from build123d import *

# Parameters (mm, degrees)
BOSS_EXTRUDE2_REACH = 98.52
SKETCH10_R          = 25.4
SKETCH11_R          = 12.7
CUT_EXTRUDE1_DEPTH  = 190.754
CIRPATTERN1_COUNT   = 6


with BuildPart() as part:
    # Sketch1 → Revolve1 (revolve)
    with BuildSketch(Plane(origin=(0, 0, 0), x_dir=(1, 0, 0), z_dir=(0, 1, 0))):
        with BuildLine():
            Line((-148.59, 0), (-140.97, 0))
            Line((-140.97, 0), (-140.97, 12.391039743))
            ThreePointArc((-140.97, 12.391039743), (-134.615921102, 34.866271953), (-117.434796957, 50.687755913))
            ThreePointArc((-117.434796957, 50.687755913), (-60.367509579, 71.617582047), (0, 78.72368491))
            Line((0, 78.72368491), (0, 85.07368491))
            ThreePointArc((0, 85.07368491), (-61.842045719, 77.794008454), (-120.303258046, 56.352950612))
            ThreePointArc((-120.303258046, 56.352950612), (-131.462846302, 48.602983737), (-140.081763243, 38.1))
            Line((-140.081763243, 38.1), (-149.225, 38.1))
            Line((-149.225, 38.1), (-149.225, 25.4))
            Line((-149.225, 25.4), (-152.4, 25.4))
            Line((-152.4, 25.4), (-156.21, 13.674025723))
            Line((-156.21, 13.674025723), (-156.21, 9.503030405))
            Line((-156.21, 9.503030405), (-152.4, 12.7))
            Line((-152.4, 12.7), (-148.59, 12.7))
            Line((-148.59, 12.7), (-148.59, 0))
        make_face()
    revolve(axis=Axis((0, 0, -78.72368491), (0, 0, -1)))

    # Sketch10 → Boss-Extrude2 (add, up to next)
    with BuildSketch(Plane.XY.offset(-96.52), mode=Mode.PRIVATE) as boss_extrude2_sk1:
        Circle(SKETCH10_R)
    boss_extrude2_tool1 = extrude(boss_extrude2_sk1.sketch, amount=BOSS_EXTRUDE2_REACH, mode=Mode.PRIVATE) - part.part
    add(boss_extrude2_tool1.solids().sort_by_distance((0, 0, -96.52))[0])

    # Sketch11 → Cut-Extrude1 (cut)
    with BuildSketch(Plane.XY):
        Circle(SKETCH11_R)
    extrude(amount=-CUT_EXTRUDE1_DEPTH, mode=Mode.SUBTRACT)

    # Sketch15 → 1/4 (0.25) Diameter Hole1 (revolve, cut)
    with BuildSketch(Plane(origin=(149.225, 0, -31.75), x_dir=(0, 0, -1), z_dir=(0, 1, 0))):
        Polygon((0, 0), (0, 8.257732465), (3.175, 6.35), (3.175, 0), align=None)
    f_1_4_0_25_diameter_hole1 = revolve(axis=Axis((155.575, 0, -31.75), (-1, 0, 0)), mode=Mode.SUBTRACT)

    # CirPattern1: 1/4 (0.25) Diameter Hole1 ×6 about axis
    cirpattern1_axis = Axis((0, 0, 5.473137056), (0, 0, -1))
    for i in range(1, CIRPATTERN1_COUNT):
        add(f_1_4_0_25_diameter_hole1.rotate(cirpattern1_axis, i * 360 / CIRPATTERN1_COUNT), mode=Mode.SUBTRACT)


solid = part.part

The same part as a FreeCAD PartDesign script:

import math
import FreeCAD as App
import Part
import Sketcher

V = App.Vector
Q = App.Units.Quantity


def add_polygon(sketch, points):
    """Adds a closed chain of lines whose ends are joined by coincident constraints."""
    first, n = sketch.GeometryCount, len(points)
    for a, b in zip(points, points[1:] + points[:1]):
        sketch.addGeometry(Part.LineSegment(App.Vector(*a, 0), App.Vector(*b, 0)), False)
    for i in range(n):
        sketch.addConstraint(Sketcher.Constraint("Coincident", first + i, 2, first + (i + 1) % n, 1))

doc = App.newDocument("Part")
body = doc.addObject("PartDesign::Body", "Body")

# Sketch on XZ plane
sketch1 = doc.addObject("Sketcher::SketchObject", "Sketch")
body.addObject(sketch1)
sketch1.AttachmentSupport = (doc.XZ_Plane, [""])
sketch1.MapMode = "FlatFace"
sketch1.addGeometry(Part.LineSegment(V(-148.6, 0, 0), V(-141, 0, 0)), False)
sketch1.addGeometry(Part.LineSegment(V(-141, 0, 0), V(-141, -12.4, 0)), False)
sketch1.addGeometry(Part.ArcOfCircle(Part.Circle(V(-98, -12.4, 0), V(0, 0, 1), 42.9), math.radians(-180), math.radians(-117)), False)
sketch1.addGeometry(Part.ArcOfCircle(Part.Circle(V(0, 181.2, 0), V(0, 0, 1), 260), math.radians(-117), math.radians(-90)), False)
sketch1.addGeometry(Part.LineSegment(V(0, -78.7, 0), V(0, -85.1, 0)), False)
sketch1.addGeometry(Part.ArcOfCircle(Part.Circle(V(0, 181.2, 0), V(0, 0, 1), 266.3), math.radians(-117), math.radians(-90)), False)
sketch1.addGeometry(Part.ArcOfCircle(Part.Circle(V(-98, -12.4, 0), V(0, 0, 1), 49.3), math.radians(-149), math.radians(-117)), False)
sketch1.addGeometry(Part.LineSegment(V(-140.1, -38.1, 0), V(-149.2, -38.1, 0)), False)
sketch1.addGeometry(Part.LineSegment(V(-149.2, -38.1, 0), V(-149.2, -25.4, 0)), False)
sketch1.addGeometry(Part.LineSegment(V(-149.2, -25.4, 0), V(-152.4, -25.4, 0)), False)
sketch1.addGeometry(Part.LineSegment(V(-152.4, -25.4, 0), V(-156.2, -13.7, 0)), False)
sketch1.addGeometry(Part.LineSegment(V(-156.2, -13.7, 0), V(-156.2, -9.5, 0)), False)
sketch1.addGeometry(Part.LineSegment(V(-156.2, -9.5, 0), V(-152.4, -12.7, 0)), False)
sketch1.addGeometry(Part.LineSegment(V(-152.4, -12.7, 0), V(-148.6, -12.7, 0)), False)
sketch1.addGeometry(Part.LineSegment(V(-148.6, -12.7, 0), V(-148.6, 0, 0)), False)
sketch1.addConstraint(Sketcher.Constraint("Coincident", 0, 2, 1, 1))
sketch1.addConstraint(Sketcher.Constraint("Tangent", 1, 2, 2, 1))
sketch1.addConstraint(Sketcher.Constraint("Tangent", 2, 2, 3, 1))
sketch1.addConstraint(Sketcher.Constraint("Coincident", 3, 2, 4, 1))
sketch1.addConstraint(Sketcher.Constraint("Coincident", 4, 2, 5, 2))
sketch1.addConstraint(Sketcher.Constraint("Tangent", 5, 1, 6, 2))
sketch1.addConstraint(Sketcher.Constraint("Coincident", 6, 1, 7, 1))
sketch1.addConstraint(Sketcher.Constraint("Coincident", 7, 2, 8, 1))
sketch1.addConstraint(Sketcher.Constraint("Coincident", 8, 2, 9, 1))
sketch1.addConstraint(Sketcher.Constraint("Coincident", 9, 2, 10, 1))
sketch1.addConstraint(Sketcher.Constraint("Coincident", 10, 2, 11, 1))
sketch1.addConstraint(Sketcher.Constraint("Coincident", 11, 2, 12, 1))
sketch1.addConstraint(Sketcher.Constraint("Coincident", 12, 2, 13, 1))
sketch1.addConstraint(Sketcher.Constraint("Coincident", 13, 2, 14, 1))
sketch1.addConstraint(Sketcher.Constraint("Coincident", 14, 2, 0, 1))
sketch1.addConstraint(Sketcher.Constraint("Horizontal", 0))
sketch1.addConstraint(Sketcher.Constraint("Vertical", 1))
sketch1.addConstraint(Sketcher.Constraint("Vertical", 4))
sketch1.addConstraint(Sketcher.Constraint("Horizontal", 7))
sketch1.addConstraint(Sketcher.Constraint("Vertical", 8))
sketch1.addConstraint(Sketcher.Constraint("Horizontal", 9))
sketch1.addConstraint(Sketcher.Constraint("Vertical", 11))
sketch1.addConstraint(Sketcher.Constraint("Horizontal", 13))
sketch1.addConstraint(Sketcher.Constraint("Vertical", 14))
sketch1.addConstraint(Sketcher.Constraint("Coincident", 5, 3, 3, 3))
sketch1.addConstraint(Sketcher.Constraint("Coincident", 6, 3, 2, 3))
sketch1.addConstraint(Sketcher.Constraint("PointOnObject", 3, 3, -2))
sketch1.addConstraint(Sketcher.Constraint("PointOnObject", 0, 2, -1))
sketch1.addConstraint(Sketcher.Constraint("PointOnObject", 3, 2, -2))
sketch1.addConstraint(Sketcher.Constraint("Vertical", 9, 2, 12, 2))
sketch1.addConstraint(Sketcher.Constraint("Equal", 8, 14))
sketch1.addConstraint(Sketcher.Constraint("Radius", 2, Q("1.69 in")))
sketch1.addConstraint(Sketcher.Constraint("Radius", 6, Q("1.94 in")))
sketch1.addConstraint(Sketcher.Constraint("DistanceX", 0, 1, 0, 2, Q("0.3 in")))
sketch1.addConstraint(Sketcher.Constraint("DistanceY", 8, 1, 8, 2, Q("0.5 in")))
sketch1.addConstraint(Sketcher.Constraint("DistanceY", 8, 2, -1, 1, Q("1 in")))
sketch1.addConstraint(Sketcher.Constraint("DistanceX", 9, 2, -1, 1, Q("6 in")))
sketch1.addConstraint(Sketcher.Constraint("Angle", 10, Q("108 deg")))
sketch1.addConstraint(Sketcher.Constraint("Angle", 12, Q("-40 deg")))
sketch1.addConstraint(Sketcher.Constraint("Radius", 3, Q("10.235 in")))
sketch1.addConstraint(Sketcher.Constraint("DistanceX", 13, 1, 13, 2, Q("0.15 in")))
sketch1.addConstraint(Sketcher.Constraint("DistanceX", 10, 2, 1, 2, Q("0.6 in")))
sketch1.addConstraint(Sketcher.Constraint("DistanceX", 9, 2, 9, 1, Q("0.125 in")))
sketch1.addConstraint(Sketcher.Constraint("DistanceY", 1, 2, 1, 1, Q("12.39104 mm")))
revolution = doc.addObject("PartDesign::Revolution", "Revolution")
body.addObject(revolution)
revolution.Profile = sketch1
revolution.ReferenceAxis = (sketch1, ["V_Axis"])
revolution.Angle = 360

# Sketch on XY plane
sketch2 = doc.addObject("Sketcher::SketchObject", "Sketch001")
body.addObject(sketch2)
sketch2.AttachmentSupport = (doc.XY_Plane, [""])
sketch2.MapMode = "FlatFace"
sketch2.AttachmentOffset = App.Placement(V(0, 0, -3.8 * 25.4), App.Rotation())
sketch2.addGeometry(Part.Circle(V(0, 0, 0), V(0, 0, 1), 25), False)
sketch2.addConstraint(Sketcher.Constraint("Coincident", 0, 3, -1, 1))
sketch2.addConstraint(Sketcher.Constraint("Diameter", 0, Q("2 in")))
pad1 = doc.addObject("PartDesign::Pad", "Pad")
body.addObject(pad1)
pad1.Profile = sketch2
pad1.Type = "UpToFirst"

# Sketch on XY plane
sketch3 = doc.addObject("Sketcher::SketchObject", "Sketch002")
body.addObject(sketch3)
sketch3.AttachmentSupport = (doc.XY_Plane, [""])
sketch3.MapMode = "FlatFace"
sketch3.addGeometry(Part.Circle(V(0, 0, 0), V(0, 0, 1), 13), False)
sketch3.addConstraint(Sketcher.Constraint("Coincident", 0, 3, -1, 1))
sketch3.addConstraint(Sketcher.Constraint("Diameter", 0, Q("1 in")))
pocket1 = doc.addObject("PartDesign::Pocket", "Pocket")
body.addObject(pocket1)
pocket1.Profile = sketch3
pocket1.Length = Q("7.51 in")

# Sketch on XZ plane
sketch4 = doc.addObject("Sketcher::SketchObject", "Sketch003")
body.addObject(sketch4)
sketch4.AttachmentSupport = (doc.XZ_Plane, [""])
sketch4.MapMode = "FlatFace"
add_polygon(sketch4, [(141, -31.8), (149.2, -31.8), (149.2, -34.9), (142.9, -34.9)])  # lines 0-3
sketch4.addGeometry(Part.LineSegment(V(149.2, -31.8, 0), V(141, -31.8, 0)), True)  # axis
sketch4.addConstraint(Sketcher.Constraint("Horizontal", 0))
sketch4.addConstraint(Sketcher.Constraint("Vertical", 1))
sketch4.addConstraint(Sketcher.Constraint("Horizontal", 2))
sketch4.addConstraint(Sketcher.Constraint("Horizontal", 4))
sketch4.addConstraint(Sketcher.Constraint("Coincident", 4, 1, 0, 2))
sketch4.addConstraint(Sketcher.Constraint("Equal", 0, 4))
sketch4.addConstraint(Sketcher.Constraint("Angle", 3, Q("121 deg")))
sketch4.addConstraint(Sketcher.Constraint("DistanceX", 2, 2, 2, 1, Q("0.25 in")))
sketch4.addConstraint(Sketcher.Constraint("DistanceY", 1, 2, 1, 1, Q("0.125 in")))
sketch4.addConstraint(Sketcher.Constraint("DistanceY", 0, 2, -1, 1, Q("1.25 in")))
sketch4.addConstraint(Sketcher.Constraint("DistanceX", -1, 1, 0, 2, Q("5.875 in")))
groove = doc.addObject("PartDesign::Groove", "Groove")
body.addObject(groove)
groove.Profile = sketch4
groove.ReferenceAxis = (sketch4, ["Axis0"])
groove.Angle = 360
doc.recompute()

polarpattern = doc.addObject("PartDesign::PolarPattern", "PolarPattern")
body.addObject(polarpattern)
polarpattern.Originals = [groove]
polarpattern.Axis = (doc.Z_Axis, [""])
polarpattern.Angle = 360
polarpattern.Occurrences = 6
body.Tip = polarpattern

doc.recompute()
